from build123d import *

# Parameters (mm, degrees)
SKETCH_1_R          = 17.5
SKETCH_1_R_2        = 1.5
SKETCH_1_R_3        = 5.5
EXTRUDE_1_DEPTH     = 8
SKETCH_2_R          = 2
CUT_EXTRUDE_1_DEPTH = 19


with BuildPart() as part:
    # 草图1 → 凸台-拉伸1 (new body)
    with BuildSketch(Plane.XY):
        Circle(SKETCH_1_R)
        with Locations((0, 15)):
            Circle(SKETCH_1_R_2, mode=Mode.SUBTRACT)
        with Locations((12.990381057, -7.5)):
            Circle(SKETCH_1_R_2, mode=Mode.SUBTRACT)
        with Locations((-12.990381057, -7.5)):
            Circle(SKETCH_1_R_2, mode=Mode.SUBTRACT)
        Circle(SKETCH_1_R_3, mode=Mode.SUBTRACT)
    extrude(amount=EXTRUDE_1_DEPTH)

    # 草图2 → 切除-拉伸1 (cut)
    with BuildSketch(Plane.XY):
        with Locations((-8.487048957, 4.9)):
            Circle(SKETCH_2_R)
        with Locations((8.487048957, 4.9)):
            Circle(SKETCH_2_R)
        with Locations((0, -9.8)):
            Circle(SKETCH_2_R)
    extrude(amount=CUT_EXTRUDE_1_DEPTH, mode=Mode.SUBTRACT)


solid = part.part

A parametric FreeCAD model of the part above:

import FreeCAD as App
import Part
import Sketcher

V = App.Vector

doc = App.newDocument("Part")
params = doc.addObject("Spreadsheet::Sheet", "Params")
for row, (alias, value) in enumerate([
    ("sketch1_diameter", "35 mm"),
    ("sketch1_diameter2", "3 mm"),
    ("sketch1_diameter3", "11 mm"),
    ("pad1_length", "8 mm"),
    ("sketch2_diameter", "4 mm"),
    ("pocket1_length", "19 mm"),
], start=1):
    params.set(f"A{row}", alias)
    params.set(f"B{row}", "=" + value)
    params.setAlias(f"B{row}", alias)

body = doc.addObject("PartDesign::Body", "Body")

# Sketch on XY plane
sketch1 = body.newObject("Sketcher::SketchObject", "Sketch")
sketch1.AttachmentSupport = (doc.getObject("XY_Plane"), [""])
sketch1.MapMode = "FlatFace"
sketch1.addGeometry([
    Part.Circle(V(0, 0, 0), V(0, 0, 1), 17.5),  # 0
    Part.Circle(V(-12.990381, -7.5, 0), V(0, 0, 1), 1.5),  # 1
    Part.Circle(V(0, 0, 0), V(0, 0, 1), 5.5),  # 2
    Part.Circle(V(12.990381, -7.5, 0), V(0, 0, 1), 1.5),  # 3
    Part.Circle(V(0, 15, 0), V(0, 0, 1), 1.5),  # 4
], False)
sketch1.addConstraint([
    Sketcher.Constraint("Coincident", 0, 3, -1, 1),
    Sketcher.Constraint("Coincident", 2, 3, -1, 1),
    Sketcher.Constraint("Equal", 1, 3),
    Sketcher.Constraint("Equal", 3, 4),
    Sketcher.Constraint("Symmetric", 1, 3, 3, 3, -2),
    Sketcher.Constraint("PointOnObject", 4, 3, -2),
    Sketcher.Constraint("Diameter", 0, 35.0),
    Sketcher.Constraint("Diameter", 1, 3.0),
    Sketcher.Constraint("Diameter", 2, 11.0),
    Sketcher.Constraint("DistanceY", -1, 1, 4, 3, 15.0),
    Sketcher.Constraint("DistanceY", 1, 3, -1, 1, 7.5),
    Sketcher.Constraint("DistanceX", 1, 3, -1, 1, 12.990381),
])
sketch1.setExpression("Constraints[6]", "Params.sketch1_diameter")
sketch1.setExpression("Constraints[7]", "Params.sketch1_diameter2")
sketch1.setExpression("Constraints[8]", "Params.sketch1_diameter3")
pad1 = body.newObject("PartDesign::Pad", "Pad")
pad1.Profile = sketch1
pad1.setExpression("Length", "Params.pad1_length")

# Sketch on XY plane
sketch2 = body.newObject("Sketcher::SketchObject", "Sketch001")
sketch2.AttachmentSupport = (doc.getObject("XY_Plane"), [""])
sketch2.MapMode = "FlatFace"
sketch2.addGeometry([
    Part.Circle(V(-8.487049, 4.9, 0), V(0, 0, 1), 2),
    Part.Circle(V(8.487049, 4.9, 0), V(0, 0, 1), 2),
    Part.Circle(V(0, -9.8, 0), V(0, 0, 1), 2),
], False)
sketch2.addConstraint([
    Sketcher.Constraint("Equal", 0, 1),
    Sketcher.Constraint("Equal", 1, 2),
    Sketcher.Constraint("Symmetric", 0, 3, 1, 3, -2),
    Sketcher.Constraint("PointOnObject", 2, 3, -2),
    Sketcher.Constraint("Diameter", 0, 4.0),
    Sketcher.Constraint("DistanceY", -1, 1, 0, 3, 4.9),
    Sketcher.Constraint("DistanceY", 2, 3, -1, 1, 9.8),
    Sketcher.Constraint("DistanceX", 0, 3, -1, 1, 8.487049),
])
sketch2.setExpression("Constraints[4]", "Params.sketch2_diameter")
pocket1 = body.newObject("PartDesign::Pocket", "Pocket")
pocket1.Profile = sketch2
pocket1.setExpression("Length", "Params.pocket1_length")
pocket1.Reversed = True

doc.recompute()
